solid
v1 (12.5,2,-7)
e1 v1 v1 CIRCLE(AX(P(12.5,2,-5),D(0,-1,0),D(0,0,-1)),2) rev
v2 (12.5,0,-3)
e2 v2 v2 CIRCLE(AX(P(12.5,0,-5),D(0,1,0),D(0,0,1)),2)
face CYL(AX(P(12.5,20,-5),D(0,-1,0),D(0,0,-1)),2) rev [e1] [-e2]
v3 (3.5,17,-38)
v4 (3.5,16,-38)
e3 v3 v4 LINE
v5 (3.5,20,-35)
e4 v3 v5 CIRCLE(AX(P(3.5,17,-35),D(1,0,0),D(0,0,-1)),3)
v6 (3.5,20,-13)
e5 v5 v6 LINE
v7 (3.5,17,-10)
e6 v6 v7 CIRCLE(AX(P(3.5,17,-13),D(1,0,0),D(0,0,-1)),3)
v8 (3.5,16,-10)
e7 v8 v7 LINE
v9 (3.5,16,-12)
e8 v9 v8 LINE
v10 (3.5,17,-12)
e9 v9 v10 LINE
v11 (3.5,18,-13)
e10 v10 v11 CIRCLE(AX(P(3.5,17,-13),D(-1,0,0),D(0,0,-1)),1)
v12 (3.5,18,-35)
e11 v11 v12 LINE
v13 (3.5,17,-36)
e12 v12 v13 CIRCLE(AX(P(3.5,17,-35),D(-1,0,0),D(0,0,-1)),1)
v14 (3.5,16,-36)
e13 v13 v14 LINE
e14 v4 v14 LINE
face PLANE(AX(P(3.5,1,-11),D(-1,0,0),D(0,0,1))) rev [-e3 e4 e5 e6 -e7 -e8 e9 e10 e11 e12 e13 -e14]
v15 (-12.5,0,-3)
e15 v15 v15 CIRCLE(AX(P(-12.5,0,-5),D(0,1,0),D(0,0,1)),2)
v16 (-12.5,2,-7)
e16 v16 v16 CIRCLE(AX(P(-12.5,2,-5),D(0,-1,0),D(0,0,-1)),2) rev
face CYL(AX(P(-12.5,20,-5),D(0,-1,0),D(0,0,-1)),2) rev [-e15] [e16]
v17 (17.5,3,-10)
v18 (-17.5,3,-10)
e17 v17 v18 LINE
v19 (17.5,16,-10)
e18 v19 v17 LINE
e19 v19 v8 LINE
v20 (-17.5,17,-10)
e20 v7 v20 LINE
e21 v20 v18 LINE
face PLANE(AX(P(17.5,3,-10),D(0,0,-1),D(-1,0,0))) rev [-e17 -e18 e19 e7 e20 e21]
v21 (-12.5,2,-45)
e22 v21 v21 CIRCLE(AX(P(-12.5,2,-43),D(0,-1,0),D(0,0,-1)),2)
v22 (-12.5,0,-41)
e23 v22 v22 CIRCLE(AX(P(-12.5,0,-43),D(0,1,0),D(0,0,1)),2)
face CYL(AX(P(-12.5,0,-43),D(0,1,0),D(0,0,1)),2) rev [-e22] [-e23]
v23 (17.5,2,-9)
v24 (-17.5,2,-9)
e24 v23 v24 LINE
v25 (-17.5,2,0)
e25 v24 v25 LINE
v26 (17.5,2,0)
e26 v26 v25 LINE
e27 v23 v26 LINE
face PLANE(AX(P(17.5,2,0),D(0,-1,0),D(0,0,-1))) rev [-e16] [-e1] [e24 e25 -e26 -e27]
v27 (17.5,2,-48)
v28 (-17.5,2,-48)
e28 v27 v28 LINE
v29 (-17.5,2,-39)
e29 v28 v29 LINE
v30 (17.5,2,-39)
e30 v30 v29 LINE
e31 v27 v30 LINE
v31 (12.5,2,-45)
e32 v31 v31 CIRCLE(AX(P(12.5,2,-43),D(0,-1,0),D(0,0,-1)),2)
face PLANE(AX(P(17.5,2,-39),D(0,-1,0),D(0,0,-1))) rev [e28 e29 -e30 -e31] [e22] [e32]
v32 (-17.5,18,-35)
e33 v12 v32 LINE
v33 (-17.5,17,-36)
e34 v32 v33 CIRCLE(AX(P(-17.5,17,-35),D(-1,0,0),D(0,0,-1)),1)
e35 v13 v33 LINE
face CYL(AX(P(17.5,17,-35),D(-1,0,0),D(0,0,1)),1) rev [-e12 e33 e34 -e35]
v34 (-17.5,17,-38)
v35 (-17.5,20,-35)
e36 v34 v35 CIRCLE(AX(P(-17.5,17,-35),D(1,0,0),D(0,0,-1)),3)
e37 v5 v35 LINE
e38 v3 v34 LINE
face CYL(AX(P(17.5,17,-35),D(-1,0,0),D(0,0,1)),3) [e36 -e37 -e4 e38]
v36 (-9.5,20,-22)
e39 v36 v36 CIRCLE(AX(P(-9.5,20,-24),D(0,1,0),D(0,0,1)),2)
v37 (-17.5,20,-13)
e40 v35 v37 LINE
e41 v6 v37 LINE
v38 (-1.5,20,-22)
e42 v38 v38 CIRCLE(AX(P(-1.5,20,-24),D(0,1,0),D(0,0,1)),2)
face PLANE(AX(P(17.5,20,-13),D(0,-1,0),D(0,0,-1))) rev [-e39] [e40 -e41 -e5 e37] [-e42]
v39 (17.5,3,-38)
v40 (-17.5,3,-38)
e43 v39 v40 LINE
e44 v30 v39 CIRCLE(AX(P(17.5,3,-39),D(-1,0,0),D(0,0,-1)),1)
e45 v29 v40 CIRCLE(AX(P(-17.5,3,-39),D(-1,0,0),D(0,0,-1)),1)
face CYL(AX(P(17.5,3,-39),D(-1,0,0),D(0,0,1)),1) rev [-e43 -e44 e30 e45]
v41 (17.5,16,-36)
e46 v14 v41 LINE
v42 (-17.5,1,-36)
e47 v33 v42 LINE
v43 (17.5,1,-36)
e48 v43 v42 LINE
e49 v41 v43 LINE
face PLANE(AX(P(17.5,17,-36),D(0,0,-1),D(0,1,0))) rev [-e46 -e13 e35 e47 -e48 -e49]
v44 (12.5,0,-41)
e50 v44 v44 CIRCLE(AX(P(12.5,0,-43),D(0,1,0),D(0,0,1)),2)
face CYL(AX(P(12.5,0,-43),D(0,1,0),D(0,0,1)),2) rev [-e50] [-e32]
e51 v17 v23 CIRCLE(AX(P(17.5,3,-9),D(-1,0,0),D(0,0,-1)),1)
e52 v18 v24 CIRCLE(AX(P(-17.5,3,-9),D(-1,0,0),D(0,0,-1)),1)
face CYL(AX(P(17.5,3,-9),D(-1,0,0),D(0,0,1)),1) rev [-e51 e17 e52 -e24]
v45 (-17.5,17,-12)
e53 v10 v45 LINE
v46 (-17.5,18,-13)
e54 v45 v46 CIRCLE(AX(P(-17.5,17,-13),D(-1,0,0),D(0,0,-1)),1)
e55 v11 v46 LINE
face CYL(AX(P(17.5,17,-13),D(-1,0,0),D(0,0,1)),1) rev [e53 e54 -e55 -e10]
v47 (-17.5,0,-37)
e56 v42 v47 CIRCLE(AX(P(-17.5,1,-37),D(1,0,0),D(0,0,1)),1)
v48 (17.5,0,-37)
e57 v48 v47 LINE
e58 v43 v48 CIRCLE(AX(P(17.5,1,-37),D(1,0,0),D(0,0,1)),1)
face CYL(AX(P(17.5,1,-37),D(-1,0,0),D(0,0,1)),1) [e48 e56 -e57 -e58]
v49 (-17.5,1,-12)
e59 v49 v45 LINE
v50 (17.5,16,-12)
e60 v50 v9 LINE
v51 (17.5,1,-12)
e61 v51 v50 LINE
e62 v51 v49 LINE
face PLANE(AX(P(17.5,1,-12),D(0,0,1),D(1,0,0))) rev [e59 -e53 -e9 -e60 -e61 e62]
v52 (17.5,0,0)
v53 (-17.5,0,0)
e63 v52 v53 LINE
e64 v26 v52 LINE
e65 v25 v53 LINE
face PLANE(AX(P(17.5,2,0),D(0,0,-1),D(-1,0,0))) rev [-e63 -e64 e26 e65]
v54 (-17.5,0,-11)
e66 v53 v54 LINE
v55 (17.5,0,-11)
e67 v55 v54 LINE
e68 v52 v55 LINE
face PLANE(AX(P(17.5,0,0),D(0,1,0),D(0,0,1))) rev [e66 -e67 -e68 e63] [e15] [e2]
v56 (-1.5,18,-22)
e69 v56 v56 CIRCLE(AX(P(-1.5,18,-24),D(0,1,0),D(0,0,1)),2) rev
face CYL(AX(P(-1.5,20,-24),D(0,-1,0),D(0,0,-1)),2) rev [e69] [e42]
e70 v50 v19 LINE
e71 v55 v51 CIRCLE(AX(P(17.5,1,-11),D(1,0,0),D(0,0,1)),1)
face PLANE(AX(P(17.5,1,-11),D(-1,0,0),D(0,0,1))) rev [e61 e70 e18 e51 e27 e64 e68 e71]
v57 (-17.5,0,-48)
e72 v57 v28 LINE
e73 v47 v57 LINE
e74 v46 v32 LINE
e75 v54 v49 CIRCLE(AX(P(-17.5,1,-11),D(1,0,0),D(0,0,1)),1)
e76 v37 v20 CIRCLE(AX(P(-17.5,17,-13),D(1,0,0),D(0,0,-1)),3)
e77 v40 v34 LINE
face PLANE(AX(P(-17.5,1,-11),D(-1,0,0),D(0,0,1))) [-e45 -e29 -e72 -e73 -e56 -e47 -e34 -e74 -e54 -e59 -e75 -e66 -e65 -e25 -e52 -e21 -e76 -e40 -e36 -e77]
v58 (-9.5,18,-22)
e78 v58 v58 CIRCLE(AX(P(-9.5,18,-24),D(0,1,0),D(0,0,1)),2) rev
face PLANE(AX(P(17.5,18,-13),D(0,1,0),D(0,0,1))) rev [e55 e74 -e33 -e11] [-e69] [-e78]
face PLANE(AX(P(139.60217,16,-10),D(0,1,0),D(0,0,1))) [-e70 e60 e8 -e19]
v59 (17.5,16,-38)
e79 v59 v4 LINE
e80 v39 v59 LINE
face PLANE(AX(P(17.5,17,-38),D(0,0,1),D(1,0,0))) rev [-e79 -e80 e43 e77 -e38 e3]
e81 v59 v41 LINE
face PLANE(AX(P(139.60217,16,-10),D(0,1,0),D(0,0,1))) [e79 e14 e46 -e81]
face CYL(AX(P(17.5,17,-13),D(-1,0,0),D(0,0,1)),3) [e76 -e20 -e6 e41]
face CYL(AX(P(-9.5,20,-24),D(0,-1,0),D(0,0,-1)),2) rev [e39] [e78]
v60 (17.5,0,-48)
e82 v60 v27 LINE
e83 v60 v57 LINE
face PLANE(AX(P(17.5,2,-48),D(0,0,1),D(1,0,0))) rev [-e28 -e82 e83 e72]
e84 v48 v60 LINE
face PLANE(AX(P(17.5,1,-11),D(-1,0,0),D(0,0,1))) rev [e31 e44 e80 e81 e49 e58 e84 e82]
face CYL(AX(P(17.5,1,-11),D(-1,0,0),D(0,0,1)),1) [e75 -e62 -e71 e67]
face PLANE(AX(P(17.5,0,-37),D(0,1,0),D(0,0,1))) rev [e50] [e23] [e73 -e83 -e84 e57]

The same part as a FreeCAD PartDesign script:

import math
import FreeCAD as App
import Part
import Sketcher
from FreeCAD import Vector
Q = App.Units.Quantity

doc = App.newDocument("Part")
body = doc.addObject("PartDesign::Body", "Body")

# Sketch on YZ plane
sketch1 = body.newObject("Sketcher::SketchObject", "Sketch")
sketch1.AttachmentSupport = (doc.getObject("YZ_Plane"), [""])
sketch1.MapMode = "FlatFace"
sketch1.addGeometry(Part.LineSegment(Vector(0, 0, 0), Vector(0, -11, 0)), False)
sketch1.addGeometry(Part.ArcOfCircle(Part.Circle(Vector(1, -11, 0), Vector(0, 0, 1), 1), math.radians(-180), math.radians(-90)), False)
sketch1.addGeometry(Part.LineSegment(Vector(1, -12, 0), Vector(17, -12, 0)), False)
sketch1.addGeometry(Part.ArcOfCircle(Part.Circle(Vector(17, -13, 0), Vector(0, 0, 1), 1), math.radians(0), math.radians(90)), False)
sketch1.addGeometry(Part.LineSegment(Vector(18, -13, 0), Vector(18, -35, 0)), False)
sketch1.addGeometry(Part.ArcOfCircle(Part.Circle(Vector(17, -35, 0), Vector(0, 0, 1), 1), math.radians(-90), math.radians(0)), False)
sketch1.addGeometry(Part.LineSegment(Vector(17, -36, 0), Vector(1, -36, 0)), False)
sketch1.addGeometry(Part.ArcOfCircle(Part.Circle(Vector(1, -37, 0), Vector(0, 0, 1), 1), math.radians(90), math.radians(180)), False)
sketch1.addGeometry(Part.LineSegment(Vector(0, -37, 0), Vector(0, -48, 0)), False)
sketch1.addGeometry(Part.LineSegment(Vector(0, -48, 0), Vector(2, -48, 0)), False)
sketch1.addGeometry(Part.LineSegment(Vector(2, -48, 0), Vector(2, -39, 0)), False)
sketch1.addGeometry(Part.ArcOfCircle(Part.Circle(Vector(3, -39, 0), Vector(0, 0, 1), 1), math.radians(90), math.radians(180)), False)
sketch1.addGeometry(Part.LineSegment(Vector(3, -38, 0), Vector(17, -38, 0)), False)
sketch1.addGeometry(Part.ArcOfCircle(Part.Circle(Vector(17, -35, 0), Vector(0, 0, 1), 3), math.radians(-90), math.radians(0)), False)
sketch1.addGeometry(Part.LineSegment(Vector(20, -35, 0), Vector(20, -13, 0)), False)
sketch1.addGeometry(Part.ArcOfCircle(Part.Circle(Vector(17, -13, 0), Vector(0, 0, 1), 3), math.radians(0), math.radians(90)), False)
sketch1.addGeometry(Part.LineSegment(Vector(17, -10, 0), Vector(3, -10, 0)), False)
sketch1.addGeometry(Part.ArcOfCircle(Part.Circle(Vector(3, -9, 0), Vector(0, 0, 1), 1), math.radians(-180), math.radians(-90)), False)
sketch1.addGeometry(Part.LineSegment(Vector(2, -9, 0), Vector(2, 0, 0)), False)
sketch1.addGeometry(Part.LineSegment(Vector(2, 0, 0), Vector(0, 0, 0)), False)
sketch1.addConstraint(Sketcher.Constraint("Tangent", 0, 2, 1, 1))
sketch1.addConstraint(Sketcher.Constraint("Tangent", 1, 2, 2, 1))
sketch1.addConstraint(Sketcher.Constraint("Tangent", 2, 2, 3, 2))
sketch1.addConstraint(Sketcher.Constraint("Tangent", 3, 1, 4, 1))
sketch1.addConstraint(Sketcher.Constraint("Tangent", 4, 2, 5, 2))
sketch1.addConstraint(Sketcher.Constraint("Tangent", 5, 1, 6, 1))
sketch1.addConstraint(Sketcher.Constraint("Tangent", 6, 2, 7, 1))
sketch1.addConstraint(Sketcher.Constraint("Tangent", 7, 2, 8, 1))
sketch1.addConstraint(Sketcher.Constraint("Coincident", 8, 2, 9, 1))
sketch1.addConstraint(Sketcher.Constraint("Coincident", 9, 2, 10, 1))
sketch1.addConstraint(Sketcher.Constraint("Tangent", 10, 2, 11, 2))
sketch1.addConstraint(Sketcher.Constraint("Tangent", 11, 1, 12, 1))
sketch1.addConstraint(Sketcher.Constraint("Tangent", 12, 2, 13, 1))
sketch1.addConstraint(Sketcher.Constraint("Tangent", 13, 2, 14, 1))
sketch1.addConstraint(Sketcher.Constraint("Tangent", 14, 2, 15, 1))
sketch1.addConstraint(Sketcher.Constraint("Tangent", 15, 2, 16, 1))
sketch1.addConstraint(Sketcher.Constraint("Tangent", 16, 2, 17, 2))
sketch1.addConstraint(Sketcher.Constraint("Tangent", 17, 1, 18, 1))
sketch1.addConstraint(Sketcher.Constraint("Coincident", 18, 2, 19, 1))
sketch1.addConstraint(Sketcher.Constraint("Coincident", 19, 2, 0, 1))
sketch1.addConstraint(Sketcher.Constraint("Vertical", 0))
sketch1.addConstraint(Sketcher.Constraint("Horizontal", 2))
sketch1.addConstraint(Sketcher.Constraint("Vertical", 4))
sketch1.addConstraint(Sketcher.Constraint("Horizontal", 6))
sketch1.addConstraint(Sketcher.Constraint("Vertical", 8))
sketch1.addConstraint(Sketcher.Constraint("Horizontal", 9))
sketch1.addConstraint(Sketcher.Constraint("Vertical", 10))
sketch1.addConstraint(Sketcher.Constraint("Horizontal", 12))
sketch1.addConstraint(Sketcher.Constraint("Vertical", 14))
sketch1.addConstraint(Sketcher.Constraint("Horizontal", 16))
sketch1.addConstraint(Sketcher.Constraint("Vertical", 18))
sketch1.addConstraint(Sketcher.Constraint("Horizontal", 19))
sketch1.addConstraint(Sketcher.Constraint("Coincident", 19, 2, -1, 1))
sketch1.addConstraint(Sketcher.Constraint("Coincident", 13, 3, 5, 3))
sketch1.addConstraint(Sketcher.Constraint("Coincident", 15, 3, 3, 3))
sketch1.addConstraint(Sketcher.Constraint("Equal", 1, 3))
sketch1.addConstraint(Sketcher.Constraint("Equal", 3, 5))
sketch1.addConstraint(Sketcher.Constraint("Equal", 5, 7))
sketch1.addConstraint(Sketcher.Constraint("Equal", 7, 11))
sketch1.addConstraint(Sketcher.Constraint("Equal", 11, 17))
sketch1.addConstraint(Sketcher.Constraint("PointOnObject", 7, 2, -2))
sketch1.addConstraint(Sketcher.Constraint("Vertical", 11, 3, 17, 3))
sketch1.addConstraint(Sketcher.Constraint("Equal", 0, 8))
sketch1.addConstraint(Sketcher.Constraint("Radius", 1, Q("1 mm")))
sketch1.addConstraint(Sketcher.Constraint("Radius", 13, Q("3 mm")))
sketch1.addConstraint(Sketcher.Constraint("DistanceX", 2, 1, 2, 2, Q("16 mm")))
sketch1.addConstraint(Sketcher.Constraint("DistanceX", 9, 1, 9, 2, Q("2 mm")))
sketch1.addConstraint(Sketcher.Constraint("DistanceY", 0, 2, 0, 1, Q("11 mm")))
sketch1.addConstraint(Sketcher.Constraint("DistanceY", 4, 2, 4, 1, Q("22 mm")))
pad1 = body.newObject("PartDesign::Pad", "Pad")
pad1.Profile = sketch1
pad1.Length = 35
pad1.Midplane = True

# Sketch on YZ plane
sketch2 = body.newObject("Sketcher::SketchObject", "Sketch001")
sketch2.AttachmentSupport = (doc.getObject("YZ_Plane"), [""])
sketch2.MapMode = "FlatFace"
sketch2.AttachmentOffset = App.Placement(Vector(0, 0, 17.5), App.Rotation())
sketch2.addGeometry(Part.LineSegment(Vector(17, -10, 0), Vector(16, -10, 0)), False)
sketch2.addGeometry(Part.LineSegment(Vector(16, -10, 0), Vector(16, -12, 0)), False)
sketch2.addGeometry(Part.LineSegment(Vector(16, -12, 0), Vector(17, -12, 0)), False)
sketch2.addGeometry(Part.ArcOfCircle(Part.Circle(Vector(17, -13, 0), Vector(0, 0, 1), 1), math.radians(0), math.radians(90)), False)
sketch2.addGeometry(Part.LineSegment(Vector(18, -13, 0), Vector(18, -35, 0)), False)
sketch2.addGeometry(Part.ArcOfCircle(Part.Circle(Vector(17, -35, 0), Vector(0, 0, 1), 1), math.radians(-90), math.radians(0)), False)
sketch2.addGeometry(Part.LineSegment(Vector(17, -36, 0), Vector(16, -36, 0)), False)
sketch2.addGeometry(Part.LineSegment(Vector(16, -36, 0), Vector(16, -38, 0)), False)
sketch2.addGeometry(Part.LineSegment(Vector(16, -38, 0), Vector(17, -38, 0)), False)
sketch2.addGeometry(Part.ArcOfCircle(Part.Circle(Vector(17, -35, 0), Vector(0, 0, 1), 3), math.radians(-90), math.radians(0)), False)
sketch2.addGeometry(Part.LineSegment(Vector(20, -35, 0), Vector(20, -13, 0)), False)
sketch2.addGeometry(Part.ArcOfCircle(Part.Circle(Vector(17, -13, 0), Vector(0, 0, 1), 3), math.radians(0), math.radians(90)), False)
sketch2.addConstraint(Sketcher.Constraint("Coincident", 0, 2, 1, 1))
sketch2.addConstraint(Sketcher.Constraint("Coincident", 1, 2, 2, 1))
sketch2.addConstraint(Sketcher.Constraint("Tangent", 2, 2, 3, 2))
sketch2.addConstraint(Sketcher.Constraint("Tangent", 3, 1, 4, 1))
sketch2.addConstraint(Sketcher.Constraint("Tangent", 4, 2, 5, 2))
sketch2.addConstraint(Sketcher.Constraint("Tangent", 5, 1, 6, 1))
sketch2.addConstraint(Sketcher.Constraint("Coincident", 6, 2, 7, 1))
sketch2.addConstraint(Sketcher.Constraint("Coincident", 7, 2, 8, 1))
sketch2.addConstraint(Sketcher.Constraint("Tangent", 8, 2, 9, 1))
sketch2.addConstraint(Sketcher.Constraint("Tangent", 9, 2, 10, 1))
sketch2.addConstraint(Sketcher.Constraint("Tangent", 10, 2, 11, 1))
sketch2.addConstraint(Sketcher.Constraint("Tangent", 11, 2, 0, 1))
sketch2.addConstraint(Sketcher.Constraint("Horizontal", 0))
sketch2.addConstraint(Sketcher.Constraint("Vertical", 1))
sketch2.addConstraint(Sketcher.Constraint("Horizontal", 2))
sketch2.addConstraint(Sketcher.Constraint("Vertical", 4))
sketch2.addConstraint(Sketcher.Constraint("Horizontal", 6))
sketch2.addConstraint(Sketcher.Constraint("Vertical", 7))
sketch2.addConstraint(Sketcher.Constraint("Horizontal", 8))
sketch2.addConstraint(Sketcher.Constraint("Vertical", 10))
sketch2.addConstraint(Sketcher.Constraint("Coincident", 9, 3, 5, 3))
sketch2.addConstraint(Sketcher.Constraint("Coincident", 11, 3, 3, 3))
sketch2.addConstraint(Sketcher.Constraint("Equal", 3, 5))
sketch2.addConstraint(Sketcher.Constraint("Vertical", 1, 2, 6, 2))
sketch2.addConstraint(Sketcher.Constraint("Radius", 3, Q("1 mm")))
sketch2.addConstraint(Sketcher.Constraint("Radius", 9, Q("3 mm")))
sketch2.addConstraint(Sketcher.Constraint("DistanceX", 0, 2, 0, 1, Q("1 mm")))
sketch2.addConstraint(Sketcher.Constraint("DistanceY", 4, 2, 4, 1, Q("22 mm")))
sketch2.addConstraint(Sketcher.Constraint("DistanceX", -1, 1, 3, 3, Q("17 mm")))
sketch2.addConstraint(Sketcher.Constraint("DistanceY", 3, 3, -1, 1, Q("13 mm")))
pocket1 = body.newObject("PartDesign::Pocket", "Pocket")
pocket1.Profile = sketch2
pocket1.Type = "TwoLengths"
pocket1.Length = 63.681736
pocket1.Length2 = 14
pocket1.Reversed = True

# Sketch on XZ plane
sketch3 = body.newObject("Sketcher::SketchObject", "Sketch002")
sketch3.AttachmentSupport = (doc.getObject("XZ_Plane"), [""])
sketch3.MapMode = "FlatFace"
sketch3.AttachmentOffset = App.Placement(Vector(0, 0, -2), App.Rotation())
sketch3.addGeometry(Part.Circle(Vector(-12.5, -43, 0), Vector(0, 0, 1), 2), False)
sketch3.addGeometry(Part.Circle(Vector(12.5, -43, 0), Vector(0, 0, 1), 2), False)
sketch3.addConstraint(Sketcher.Constraint("Equal", 0, 1))
sketch3.addConstraint(Sketcher.Constraint("Symmetric", 0, 3, 1, 3, -2))
sketch3.addConstraint(Sketcher.Constraint("Diameter", 0, Q("4 mm")))
sketch3.addConstraint(Sketcher.Constraint("DistanceY", 0, 3, -1, 1, Q("43 mm")))
sketch3.addConstraint(Sketcher.Constraint("DistanceX", 0, 3, 1, 3, Q("25 mm")))
pocket2 = body.newObject("PartDesign::Pocket", "Pocket001")
pocket2.Profile = sketch3
pocket2.Type = "ThroughAll"
pocket2.Midplane = True

# Sketch on XZ plane
sketch4 = body.newObject("Sketcher::SketchObject", "Sketch003")
sketch4.AttachmentSupport = (doc.getObject("XZ_Plane"), [""])
sketch4.MapMode = "FlatFace"
sketch4.AttachmentOffset = App.Placement(Vector(0, 0, -2), App.Rotation())
sketch4.addGeometry(Part.Circle(Vector(-12.5, -5, 0), Vector(0, 0, 1), 2), False)
sketch4.addGeometry(Part.Circle(Vector(12.5, -5, 0), Vector(0, 0, 1), 2), False)
sketch4.addGeometry(Part.Circle(Vector(-9.5, -24, 0), Vector(0, 0, 1), 2), False)
sketch4.addGeometry(Part.Circle(Vector(-1.5, -24, 0), Vector(0, 0, 1), 2), False)
sketch4.addConstraint(Sketcher.Constraint("Equal", 0, 1))
sketch4.addConstraint(Sketcher.Constraint("Equal", 1, 2))
sketch4.addConstraint(Sketcher.Constraint("Equal", 2, 3))
sketch4.addConstraint(Sketcher.Constraint("Symmetric", 0, 3, 1, 3, -2))
sketch4.addConstraint(Sketcher.Constraint("Horizontal", 2, 3, 3, 3))
sketch4.addConstraint(Sketcher.Constraint("Diameter", 0, Q("4 mm")))
sketch4.addConstraint(Sketcher.Constraint("DistanceY", 0, 3, -1, 1, Q("5 mm")))
sketch4.addConstraint(Sketcher.Constraint("DistanceY", 2, 3, -1, 1, Q("24 mm")))
sketch4.addConstraint(Sketcher.Constraint("DistanceX", 0, 3, 1, 3, Q("25 mm")))
sketch4.addConstraint(Sketcher.Constraint("DistanceX", 0, 3, 2, 3, Q("3 mm")))
sketch4.addConstraint(Sketcher.Constraint("DistanceX", 2, 3, 3, 3, Q("8 mm")))
pocket3 = body.newObject("PartDesign::Pocket", "Pocket002")
pocket3.Profile = sketch4
pocket3.Type = "ThroughAll"
pocket3.Midplane = True

doc.recompute()
